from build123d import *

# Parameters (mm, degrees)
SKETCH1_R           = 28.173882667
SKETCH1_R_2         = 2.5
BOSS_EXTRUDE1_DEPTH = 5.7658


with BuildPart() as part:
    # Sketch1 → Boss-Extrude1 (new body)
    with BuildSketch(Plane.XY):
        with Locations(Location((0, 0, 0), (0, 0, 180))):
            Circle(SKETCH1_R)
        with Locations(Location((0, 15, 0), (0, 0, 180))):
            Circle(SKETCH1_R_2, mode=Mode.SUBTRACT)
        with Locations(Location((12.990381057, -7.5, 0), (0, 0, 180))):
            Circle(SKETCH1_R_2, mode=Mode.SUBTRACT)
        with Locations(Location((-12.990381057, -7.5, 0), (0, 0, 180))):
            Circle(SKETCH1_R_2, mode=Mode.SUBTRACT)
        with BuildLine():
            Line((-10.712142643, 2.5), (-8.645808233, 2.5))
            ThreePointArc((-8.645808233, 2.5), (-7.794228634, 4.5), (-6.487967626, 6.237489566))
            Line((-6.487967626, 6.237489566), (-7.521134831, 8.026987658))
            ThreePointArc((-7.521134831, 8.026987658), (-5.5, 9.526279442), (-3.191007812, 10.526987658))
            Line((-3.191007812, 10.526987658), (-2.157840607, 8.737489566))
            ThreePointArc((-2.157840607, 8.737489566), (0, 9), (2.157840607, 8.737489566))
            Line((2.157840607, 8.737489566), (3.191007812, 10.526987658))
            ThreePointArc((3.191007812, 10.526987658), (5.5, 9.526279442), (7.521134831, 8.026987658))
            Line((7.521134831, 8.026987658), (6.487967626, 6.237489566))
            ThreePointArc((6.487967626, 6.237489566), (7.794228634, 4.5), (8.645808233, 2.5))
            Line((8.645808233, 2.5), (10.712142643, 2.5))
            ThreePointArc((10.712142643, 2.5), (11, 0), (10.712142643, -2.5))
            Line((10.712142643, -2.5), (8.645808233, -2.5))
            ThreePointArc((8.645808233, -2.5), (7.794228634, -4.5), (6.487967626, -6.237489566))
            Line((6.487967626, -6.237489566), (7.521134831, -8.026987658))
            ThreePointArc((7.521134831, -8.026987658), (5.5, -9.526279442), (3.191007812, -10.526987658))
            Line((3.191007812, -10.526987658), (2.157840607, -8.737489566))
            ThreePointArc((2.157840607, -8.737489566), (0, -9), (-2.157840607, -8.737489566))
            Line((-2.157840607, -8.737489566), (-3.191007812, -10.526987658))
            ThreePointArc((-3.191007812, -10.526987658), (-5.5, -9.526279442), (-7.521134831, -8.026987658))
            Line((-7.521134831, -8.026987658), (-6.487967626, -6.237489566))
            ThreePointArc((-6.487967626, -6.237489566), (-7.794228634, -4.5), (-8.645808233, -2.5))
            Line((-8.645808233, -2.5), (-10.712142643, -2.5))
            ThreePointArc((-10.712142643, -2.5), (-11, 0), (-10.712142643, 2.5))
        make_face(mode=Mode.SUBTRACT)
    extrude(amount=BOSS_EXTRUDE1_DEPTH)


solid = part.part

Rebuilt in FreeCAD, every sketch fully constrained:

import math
import FreeCAD as App
import Part
import Sketcher
Q = App.Units.Quantity

doc = App.newDocument("Part")
body = doc.addObject("PartDesign::Body", "Body")

sketch1 = body.newObject("Sketcher::SketchObject", "Sketch")
sketch1.AttachmentSupport = (doc.getObject("XY_Plane"), [""])
sketch1.MapMode = "FlatFace"
sketch1.addGeometry(Part.Circle(App.Vector(0, 0, 0), App.Vector(0, 0, 1), 28.173883), False)
sketch1.addGeometry(Part.Circle(App.Vector(0, 15, 0), App.Vector(0, 0, 1), 2.5), False)
sketch1.addGeometry(Part.Circle(App.Vector(12.990381, -7.5, 0), App.Vector(0, 0, 1), 2.5), False)
sketch1.addGeometry(Part.ArcOfCircle(Part.Circle(App.Vector(0, 0, 0), App.Vector(0, 0, 1), 11), math.radians(166.863441), math.radians(193.136559)), False)
sketch1.addGeometry(Part.LineSegment(App.Vector(-10.712143, 2.5, 0), App.Vector(-8.645808, 2.5, 0)), False)
sketch1.addGeometry(Part.ArcOfCircle(Part.Circle(App.Vector(0, 0, 0), App.Vector(0, 0, 1), 9), math.radians(136.12762), math.radians(163.87238)), False)
sketch1.addGeometry(Part.LineSegment(App.Vector(-6.487968, 6.23749, 0), App.Vector(-7.521135, 8.026988, 0)), False)
sketch1.addGeometry(Part.ArcOfCircle(Part.Circle(App.Vector(0, 0, 0), App.Vector(0, 0, 1), 11), math.radians(106.863441), math.radians(133.136559)), False)
sketch1.addGeometry(Part.LineSegment(App.Vector(-3.191008, 10.526988, 0), App.Vector(-2.157841, 8.73749, 0)), False)
sketch1.addGeometry(Part.ArcOfCircle(Part.Circle(App.Vector(0, 0, 0), App.Vector(0, 0, 1), 9), math.radians(76.12762), math.radians(103.87238)), False)
sketch1.addGeometry(Part.LineSegment(App.Vector(2.157841, 8.73749, 0), App.Vector(3.191008, 10.526988, 0)), False)
sketch1.addGeometry(Part.ArcOfCircle(Part.Circle(App.Vector(0, 0, 0), App.Vector(0, 0, 1), 11), math.radians(46.863441), math.radians(73.136559)), False)
sketch1.addGeometry(Part.LineSegment(App.Vector(7.521135, 8.026988, 0), App.Vector(6.487968, 6.23749, 0)), False)
sketch1.addGeometry(Part.ArcOfCircle(Part.Circle(App.Vector(0, 0, 0), App.Vector(0, 0, 1), 9), math.radians(16.12762), math.radians(43.87238)), False)
sketch1.addGeometry(Part.LineSegment(App.Vector(8.645808, 2.5, 0), App.Vector(10.712143, 2.5, 0)), False)
sketch1.addGeometry(Part.ArcOfCircle(Part.Circle(App.Vector(0, 0, 0), App.Vector(0, 0, 1), 11), math.radians(-13.136559), math.radians(13.136559)), False)
sketch1.addGeometry(Part.LineSegment(App.Vector(10.712143, -2.5, 0), App.Vector(8.645808, -2.5, 0)), False)
sketch1.addGeometry(Part.ArcOfCircle(Part.Circle(App.Vector(0, 0, 0), App.Vector(0, 0, 1), 9), math.radians(-43.87238), math.radians(-16.12762)), False)
sketch1.addGeometry(Part.LineSegment(App.Vector(6.487968, -6.23749, 0), App.Vector(7.521135, -8.026988, 0)), False)
sketch1.addGeometry(Part.ArcOfCircle(Part.Circle(App.Vector(0, 0, 0), App.Vector(0, 0, 1), 11), math.radians(-73.136559), math.radians(-46.863441)), False)
sketch1.addGeometry(Part.LineSegment(App.Vector(3.191008, -10.526988, 0), App.Vector(2.157841, -8.73749, 0)), False)
sketch1.addGeometry(Part.ArcOfCircle(Part.Circle(App.Vector(0, 0, 0), App.Vector(0, 0, 1), 9), math.radians(-103.87238), math.radians(-76.12762)), False)
sketch1.addGeometry(Part.LineSegment(App.Vector(-2.157841, -8.73749, 0), App.Vector(-3.191008, -10.526988, 0)), False)
sketch1.addGeometry(Part.ArcOfCircle(Part.Circle(App.Vector(0, 0, 0), App.Vector(0, 0, 1), 11), math.radians(-133.136559), math.radians(-106.863441)), False)
sketch1.addGeometry(Part.LineSegment(App.Vector(-7.521135, -8.026988, 0), App.Vector(-6.487968, -6.23749, 0)), False)
sketch1.addGeometry(Part.ArcOfCircle(Part.Circle(App.Vector(0, 0, 0), App.Vector(0, 0, 1), 9), math.radians(-163.87238), math.radians(-136.12762)), False)
sketch1.addGeometry(Part.LineSegment(App.Vector(-8.645808, -2.5, 0), App.Vector(-10.712143, -2.5, 0)), False)
sketch1.addGeometry(Part.Circle(App.Vector(-12.990381, -7.5, 0), App.Vector(0, 0, 1), 2.5), False)
sketch1.addConstraint(Sketcher.Constraint("Coincident", 3, 1, 4, 1))
sketch1.addConstraint(Sketcher.Constraint("Coincident", 4, 2, 5, 2))
sketch1.addConstraint(Sketcher.Constraint("Coincident", 5, 1, 6, 1))
sketch1.addConstraint(Sketcher.Constraint("Coincident", 6, 2, 7, 2))
sketch1.addConstraint(Sketcher.Constraint("Coincident", 7, 1, 8, 1))
sketch1.addConstraint(Sketcher.Constraint("Coincident", 8, 2, 9, 2))
sketch1.addConstraint(Sketcher.Constraint("Coincident", 9, 1, 10, 1))
sketch1.addConstraint(Sketcher.Constraint("Coincident", 10, 2, 11, 2))
sketch1.addConstraint(Sketcher.Constraint("Coincident", 11, 1, 12, 1))
sketch1.addConstraint(Sketcher.Constraint("Coincident", 12, 2, 13, 2))
sketch1.addConstraint(Sketcher.Constraint("Coincident", 13, 1, 14, 1))
sketch1.addConstraint(Sketcher.Constraint("Coincident", 14, 2, 15, 2))
sketch1.addConstraint(Sketcher.Constraint("Coincident", 15, 1, 16, 1))
sketch1.addConstraint(Sketcher.Constraint("Coincident", 16, 2, 17, 2))
sketch1.addConstraint(Sketcher.Constraint("Coincident", 17, 1, 18, 1))
sketch1.addConstraint(Sketcher.Constraint("Coincident", 18, 2, 19, 2))
sketch1.addConstraint(Sketcher.Constraint("Coincident", 19, 1, 20, 1))
sketch1.addConstraint(Sketcher.Constraint("Coincident", 20, 2, 21, 2))
sketch1.addConstraint(Sketcher.Constraint("Coincident", 21, 1, 22, 1))
sketch1.addConstraint(Sketcher.Constraint("Coincident", 22, 2, 23, 2))
sketch1.addConstraint(Sketcher.Constraint("Coincident", 23, 1, 24, 1))
sketch1.addConstraint(Sketcher.Constraint("Coincident", 24, 2, 25, 2))
sketch1.addConstraint(Sketcher.Constraint("Coincident", 25, 1, 26, 1))
sketch1.addConstraint(Sketcher.Constraint("Coincident", 26, 2, 3, 2))
sketch1.addConstraint(Sketcher.Constraint("Horizontal", 4))
sketch1.addConstraint(Sketcher.Constraint("Horizontal", 14))
sketch1.addConstraint(Sketcher.Constraint("Horizontal", 16))
sketch1.addConstraint(Sketcher.Constraint("Horizontal", 26))
sketch1.addConstraint(Sketcher.Constraint("Coincident", 0, 3, -1, 1))
sketch1.addConstraint(Sketcher.Constraint("Coincident", 3, 3, -1, 1))
sketch1.addConstraint(Sketcher.Constraint("Coincident", 5, 3, -1, 1))
sketch1.addConstraint(Sketcher.Constraint("Coincident", 7, 3, -1, 1))
sketch1.addConstraint(Sketcher.Constraint("Coincident", 9, 3, -1, 1))
sketch1.addConstraint(Sketcher.Constraint("Coincident", 11, 3, -1, 1))
sketch1.addConstraint(Sketcher.Constraint("Coincident", 13, 3, -1, 1))
sketch1.addConstraint(Sketcher.Constraint("Coincident", 15, 3, -1, 1))
sketch1.addConstraint(Sketcher.Constraint("Coincident", 17, 3, -1, 1))
sketch1.addConstraint(Sketcher.Constraint("Coincident", 19, 3, -1, 1))
sketch1.addConstraint(Sketcher.Constraint("Coincident", 21, 3, -1, 1))
sketch1.addConstraint(Sketcher.Constraint("Coincident", 23, 3, -1, 1))
sketch1.addConstraint(Sketcher.Constraint("Coincident", 25, 3, -1, 1))
sketch1.addConstraint(Sketcher.Constraint("Equal", 1, 2))
sketch1.addConstraint(Sketcher.Constraint("Equal", 3, 7))
sketch1.addConstraint(Sketcher.Constraint("Equal", 5, 9))
sketch1.addConstraint(Sketcher.Constraint("Equal", 7, 11))
sketch1.addConstraint(Sketcher.Constraint("Equal", 9, 13))
sketch1.addConstraint(Sketcher.Constraint("Equal", 11, 15))
sketch1.addConstraint(Sketcher.Constraint("Equal", 13, 17))
sketch1.addConstraint(Sketcher.Constraint("Equal", 15, 19))
sketch1.addConstraint(Sketcher.Constraint("Equal", 17, 21))
sketch1.addConstraint(Sketcher.Constraint("Equal", 19, 23))
sketch1.addConstraint(Sketcher.Constraint("Equal", 21, 25))
sketch1.addConstraint(Sketcher.Constraint("Equal", 2, 27))
sketch1.addConstraint(Sketcher.Constraint("Symmetric", 2, 3, 27, 3, -2))
sketch1.addConstraint(Sketcher.Constraint("PointOnObject", 1, 3, -2))
sketch1.addConstraint(Sketcher.Constraint("Parallel", 6, 8))
sketch1.addConstraint(Sketcher.Constraint("Parallel", 10, 12))
sketch1.addConstraint(Sketcher.Constraint("Parallel", 8, 18))
sketch1.addConstraint(Sketcher.Constraint("Parallel", 18, 20))
sketch1.addConstraint(Sketcher.Constraint("Parallel", 12, 22))
sketch1.addConstraint(Sketcher.Constraint("Parallel", 22, 24))
sketch1.addConstraint(Sketcher.Constraint("Horizontal", 8, 2, 9, 1))
sketch1.addConstraint(Sketcher.Constraint("Horizontal", 7, 1, 10, 2))
sketch1.addConstraint(Sketcher.Constraint("Horizontal", 6, 2, 11, 1))
sketch1.addConstraint(Sketcher.Constraint("Horizontal", 4, 2, 13, 1))
sketch1.addConstraint(Sketcher.Constraint("Horizontal", 20, 2, 21, 1))
sketch1.addConstraint(Sketcher.Constraint("Horizontal", 18, 2, 23, 1))
sketch1.addConstraint(Sketcher.Constraint("Horizontal", 16, 2, 25, 1))
sketch1.addConstraint(Sketcher.Constraint("Vertical", 14, 2, 15, 1))
sketch1.addConstraint(Sketcher.Constraint("Vertical", 12, 2, 17, 1))
sketch1.addConstraint(Sketcher.Constraint("Vertical", 10, 2, 19, 1))
sketch1.addConstraint(Sketcher.Constraint("Equal", 6, 8))
sketch1.addConstraint(Sketcher.Constraint("Diameter", 1, Q("5 mm")))
sketch1.addConstraint(Sketcher.Constraint("Radius", 3, Q("11 mm")))
sketch1.addConstraint(Sketcher.Constraint("Radius", 5, Q("9 mm")))
sketch1.addConstraint(Sketcher.Constraint("Angle", 6, Q("120 deg")))
sketch1.addConstraint(Sketcher.Constraint("DistanceY", -1, 1, 1, 3, Q("15 mm")))
sketch1.addConstraint(Sketcher.Constraint("DistanceY", 27, 3, 3, 1, Q("10 mm")))
sketch1.addConstraint(Sketcher.Constraint("DistanceY", 15, 1, 14, 2, Q("5 mm")))
sketch1.addConstraint(Sketcher.Constraint("DistanceY", 6, 2, 7, 1, Q("2.5 mm")))
sketch1.addConstraint(Sketcher.Constraint("Diameter", 0, Q("56.347765 mm")))
sketch1.addConstraint(Sketcher.Constraint("DistanceX", -1, 1, 2, 3, Q("12.990381 mm")))
pad1 = body.newObject("PartDesign::Pad", "Pad")
pad1.Profile = sketch1
pad1.Length = 5.7658

doc.recompute()
